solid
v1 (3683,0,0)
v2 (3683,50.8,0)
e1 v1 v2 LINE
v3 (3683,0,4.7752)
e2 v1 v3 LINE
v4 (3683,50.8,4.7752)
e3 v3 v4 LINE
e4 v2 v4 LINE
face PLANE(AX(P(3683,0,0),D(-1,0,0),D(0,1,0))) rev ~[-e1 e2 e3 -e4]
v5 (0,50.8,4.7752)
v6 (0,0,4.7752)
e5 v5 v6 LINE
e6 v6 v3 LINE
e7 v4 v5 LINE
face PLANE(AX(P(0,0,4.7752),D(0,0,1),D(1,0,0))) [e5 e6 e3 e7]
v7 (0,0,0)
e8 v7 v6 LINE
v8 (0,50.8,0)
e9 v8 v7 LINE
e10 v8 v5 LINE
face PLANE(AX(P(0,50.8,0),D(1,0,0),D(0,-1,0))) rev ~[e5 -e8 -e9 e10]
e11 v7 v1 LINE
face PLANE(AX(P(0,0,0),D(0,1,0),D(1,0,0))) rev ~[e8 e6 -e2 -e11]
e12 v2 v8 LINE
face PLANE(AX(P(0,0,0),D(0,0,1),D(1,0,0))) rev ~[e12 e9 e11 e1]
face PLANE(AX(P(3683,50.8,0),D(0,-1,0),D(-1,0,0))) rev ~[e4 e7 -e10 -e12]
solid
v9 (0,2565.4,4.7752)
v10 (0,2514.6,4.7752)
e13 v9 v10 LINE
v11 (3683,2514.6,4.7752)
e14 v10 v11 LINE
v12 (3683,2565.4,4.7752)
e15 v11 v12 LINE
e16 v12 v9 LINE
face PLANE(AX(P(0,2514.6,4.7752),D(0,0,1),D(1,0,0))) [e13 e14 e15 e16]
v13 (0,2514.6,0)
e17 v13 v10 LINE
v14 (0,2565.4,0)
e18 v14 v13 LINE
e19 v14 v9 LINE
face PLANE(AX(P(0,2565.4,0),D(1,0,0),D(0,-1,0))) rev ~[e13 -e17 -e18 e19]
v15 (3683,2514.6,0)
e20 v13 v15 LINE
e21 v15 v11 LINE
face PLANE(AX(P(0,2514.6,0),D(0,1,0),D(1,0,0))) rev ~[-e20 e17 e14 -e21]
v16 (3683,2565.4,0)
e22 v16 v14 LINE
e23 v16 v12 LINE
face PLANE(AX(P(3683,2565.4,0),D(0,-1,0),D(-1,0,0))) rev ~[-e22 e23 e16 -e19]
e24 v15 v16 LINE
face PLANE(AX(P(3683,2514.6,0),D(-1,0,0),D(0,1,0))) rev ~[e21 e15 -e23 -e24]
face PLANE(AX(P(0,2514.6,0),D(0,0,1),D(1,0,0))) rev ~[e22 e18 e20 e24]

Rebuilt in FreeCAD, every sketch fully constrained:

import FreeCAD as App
import Part
import Sketcher
from FreeCAD import Vector
Q = App.Units.Quantity

doc = App.newDocument("Part")
params = doc.addObject("Spreadsheet::Sheet", "Params")
for row, (alias, value) in enumerate([
    ("sketch1_width", "145 in"),
    ("sketch1_height", "2 in"),
    ("pad1_length", "0.188 in"),
    ("linearpattern_pitch", "99 in"),
], start=1):
    params.set(f"A{row}", alias)
    params.set(f"B{row}", "=" + value)
    params.setAlias(f"B{row}", alias)

body = doc.addObject("PartDesign::Body", "Body")
body.AllowCompound = True

sketch1 = doc.addObject("Sketcher::SketchObject", "Sketch")
body.addObject(sketch1)
sketch1.AttachmentSupport = (doc.XY_Plane, [""])
sketch1.MapMode = "FlatFace"
sketch1.addGeometry([
    Part.LineSegment(Vector(0, 50.8, 0), Vector(0, 0, 0)),
    Part.LineSegment(Vector(0, 0, 0), Vector(3683, 0, 0)),
    Part.LineSegment(Vector(3683, 0, 0), Vector(3683, 50.8, 0)),
    Part.LineSegment(Vector(3683, 50.8, 0), Vector(0, 50.8, 0)),
], False)
sketch1.addConstraint([
    Sketcher.Constraint("Coincident", 0, 2, 1, 1),
    Sketcher.Constraint("Coincident", 1, 2, 2, 1),
    Sketcher.Constraint("Coincident", 2, 2, 3, 1),
    Sketcher.Constraint("Coincident", 3, 2, 0, 1),
    Sketcher.Constraint("Vertical", 0),
    Sketcher.Constraint("Horizontal", 1),
    Sketcher.Constraint("Vertical", 2),
    Sketcher.Constraint("Horizontal", 3),
    Sketcher.Constraint("Coincident", 0, 2, -1, 1),
    Sketcher.Constraint("DistanceX", 1, 1, 1, 2, Q("145 in")),
    Sketcher.Constraint("DistanceY", 0, 2, 0, 1, Q("2 in")),
])
sketch1.setExpression("Constraints[9]", "Params.sketch1_width")
sketch1.setExpression("Constraints[10]", "Params.sketch1_height")
pad1 = doc.addObject("PartDesign::Pad", "Pad")
body.addObject(pad1)
pad1.Profile = sketch1
pad1.setExpression("Length", "Params.pad1_length")
doc.recompute()

linearpattern = doc.addObject("PartDesign::LinearPattern", "LinearPattern")
body.addObject(linearpattern)
linearpattern.Originals = [pad1]
linearpattern.Direction = (doc.Y_Axis, [""])
linearpattern.Mode = "offset"
linearpattern.setExpression("Offset", "Params.linearpattern_pitch")
linearpattern.Occurrences = 2
body.Tip = linearpattern

doc.recompute()
